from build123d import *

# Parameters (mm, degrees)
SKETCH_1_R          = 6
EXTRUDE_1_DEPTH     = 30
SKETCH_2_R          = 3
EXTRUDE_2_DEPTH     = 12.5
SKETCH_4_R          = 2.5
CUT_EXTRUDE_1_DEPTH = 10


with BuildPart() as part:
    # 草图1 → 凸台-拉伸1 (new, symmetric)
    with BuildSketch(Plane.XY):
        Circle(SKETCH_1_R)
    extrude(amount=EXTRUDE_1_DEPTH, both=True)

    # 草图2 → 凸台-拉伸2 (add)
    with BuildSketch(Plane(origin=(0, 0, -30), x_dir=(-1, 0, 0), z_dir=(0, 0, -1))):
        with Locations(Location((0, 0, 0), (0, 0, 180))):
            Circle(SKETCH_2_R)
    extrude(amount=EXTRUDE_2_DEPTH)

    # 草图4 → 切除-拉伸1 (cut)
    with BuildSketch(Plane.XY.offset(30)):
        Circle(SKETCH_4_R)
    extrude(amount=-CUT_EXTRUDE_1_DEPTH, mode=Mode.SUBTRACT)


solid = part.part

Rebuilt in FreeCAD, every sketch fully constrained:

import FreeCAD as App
import Part
import Sketcher

V = App.Vector
Q = App.Units.Quantity

doc = App.newDocument("Part")
body = doc.addObject("PartDesign::Body", "Body")

sketch1 = doc.addObject("Sketcher::SketchObject", "Sketch")
body.addObject(sketch1)
sketch1.AttachmentSupport = (doc.XY_Plane, [""])
sketch1.MapMode = "FlatFace"
sketch1.addGeometry(Part.Circle(V(0, 0, 0), V(0, 0, 1), 6), False)
sketch1.addConstraint(Sketcher.Constraint("Coincident", 0, 3, -1, 1))
sketch1.addConstraint(Sketcher.Constraint("Diameter", 0, Q("12 mm")))
pad1 = doc.addObject("PartDesign::Pad", "Pad")
body.addObject(pad1)
pad1.Profile = sketch1
pad1.Length = 60
pad1.Midplane = True

sketch2 = doc.addObject("Sketcher::SketchObject", "Sketch001")
body.addObject(sketch2)
sketch2.AttachmentSupport = (doc.XY_Plane, [""])
sketch2.MapMode = "FlatFace"
sketch2.AttachmentOffset = App.Placement(V(0, 0, -30), App.Rotation())
sketch2.addGeometry(Part.Circle(V(0, 0, 0), V(0, 0, 1), 3), False)
sketch2.addConstraint(Sketcher.Constraint("Coincident", 0, 3, -1, 1))
sketch2.addConstraint(Sketcher.Constraint("Diameter", 0, Q("6 mm")))
pad2 = doc.addObject("PartDesign::Pad", "Pad001")
body.addObject(pad2)
pad2.Profile = sketch2
pad2.Length = 12.5
pad2.Reversed = True

sketch3 = doc.addObject("Sketcher::SketchObject", "Sketch002")
body.addObject(sketch3)
sketch3.AttachmentSupport = (doc.XY_Plane, [""])
sketch3.MapMode = "FlatFace"
sketch3.AttachmentOffset = App.Placement(V(0, 0, 30), App.Rotation())
sketch3.addGeometry(Part.Circle(V(0, 0, 0), V(0, 0, 1), 2.5), False)
sketch3.addConstraint(Sketcher.Constraint("Coincident", 0, 3, -1, 1))
sketch3.addConstraint(Sketcher.Constraint("Diameter", 0, Q("5 mm")))
pocket1 = doc.addObject("PartDesign::Pocket", "Pocket")
body.addObject(pocket1)
pocket1.Profile = sketch3
pocket1.Length = 10

doc.recompute()
